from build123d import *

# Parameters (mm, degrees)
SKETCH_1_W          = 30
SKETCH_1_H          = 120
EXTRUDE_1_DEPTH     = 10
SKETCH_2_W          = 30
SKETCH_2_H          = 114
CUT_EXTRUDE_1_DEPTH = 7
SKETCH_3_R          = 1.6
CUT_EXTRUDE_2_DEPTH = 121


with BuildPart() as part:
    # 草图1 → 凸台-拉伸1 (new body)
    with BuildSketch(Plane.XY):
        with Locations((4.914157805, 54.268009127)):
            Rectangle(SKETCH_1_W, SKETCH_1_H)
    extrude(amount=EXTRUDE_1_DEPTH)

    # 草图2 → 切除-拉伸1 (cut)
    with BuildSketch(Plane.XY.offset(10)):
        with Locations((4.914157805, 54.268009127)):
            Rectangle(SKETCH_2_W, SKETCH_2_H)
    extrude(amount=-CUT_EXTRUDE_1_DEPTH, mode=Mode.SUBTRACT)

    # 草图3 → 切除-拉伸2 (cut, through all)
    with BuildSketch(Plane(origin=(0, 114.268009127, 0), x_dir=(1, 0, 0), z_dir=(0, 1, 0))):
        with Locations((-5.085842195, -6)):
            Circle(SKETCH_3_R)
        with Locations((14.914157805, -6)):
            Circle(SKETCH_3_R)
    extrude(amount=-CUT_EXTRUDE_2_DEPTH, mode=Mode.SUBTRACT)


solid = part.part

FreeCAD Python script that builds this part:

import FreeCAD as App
import Part
import Sketcher
Q = App.Units.Quantity


def add_polygon(sketch, points):
    """Adds a closed chain of lines whose ends are joined by coincident constraints."""
    first, n = sketch.GeometryCount, len(points)
    for a, b in zip(points, points[1:] + points[:1]):
        sketch.addGeometry(Part.LineSegment(App.Vector(*a, 0), App.Vector(*b, 0)), False)
    for i in range(n):
        sketch.addConstraint(Sketcher.Constraint("Coincident", first + i, 2, first + (i + 1) % n, 1))

doc = App.newDocument("Part")
body = doc.addObject("PartDesign::Body", "Body")

# Sketch on XY plane
sketch1 = body.newObject("Sketcher::SketchObject", "Sketch")
sketch1.AttachmentSupport = (doc.getObject("XY_Plane"), [""])
sketch1.MapMode = "FlatFace"
add_polygon(sketch1, [(-10, 114), (-10, -6), (20, -6), (20, 114)])  # lines 0-3
sketch1.addConstraint([
    Sketcher.Constraint("Vertical", 0),
    Sketcher.Constraint("Horizontal", 1),
    Sketcher.Constraint("Vertical", 2),
    Sketcher.Constraint("Horizontal", 3),
    Sketcher.Constraint("DistanceX", 1, 1, 1, 2, Q("30 mm")),
    Sketcher.Constraint("DistanceY", 0, 2, 0, 1, Q("120 mm")),
    Sketcher.Constraint("DistanceY", 0, 2, -1, 1, Q("5.731991 mm")),
    Sketcher.Constraint("DistanceX", 0, 2, -1, 1, Q("10.085842 mm")),
])
pad1 = body.newObject("PartDesign::Pad", "Pad")
pad1.Profile = sketch1
pad1.Length = 10

# Sketch on XY plane
sketch2 = body.newObject("Sketcher::SketchObject", "Sketch001")
sketch2.AttachmentSupport = (doc.getObject("XY_Plane"), [""])
sketch2.MapMode = "FlatFace"
sketch2.AttachmentOffset = App.Placement(App.Vector(0, 0, 10), App.Rotation())
add_polygon(sketch2, [(-10, 111), (-10, -3), (20, -3), (20, 111)])  # lines 0-3
sketch2.addConstraint([
    Sketcher.Constraint("Vertical", 0),
    Sketcher.Constraint("Horizontal", 1),
    Sketcher.Constraint("Vertical", 2),
    Sketcher.Constraint("Horizontal", 3),
    Sketcher.Constraint("DistanceX", 1, 1, 1, 2, Q("30 mm")),
    Sketcher.Constraint("DistanceY", 0, 2, 0, 1, Q("114 mm")),
    Sketcher.Constraint("DistanceY", 0, 2, -1, 1, Q("2.731991 mm")),
    Sketcher.Constraint("DistanceX", 0, 2, -1, 1, Q("10.085842 mm")),
])
pocket1 = body.newObject("PartDesign::Pocket", "Pocket")
pocket1.Profile = sketch2
pocket1.Length = 7

# Sketch on XZ plane
sketch3 = body.newObject("Sketcher::SketchObject", "Sketch002")
sketch3.AttachmentSupport = (doc.getObject("XZ_Plane"), [""])
sketch3.MapMode = "FlatFace"
sketch3.AttachmentOffset = App.Placement(App.Vector(0, 0, -114.268009), App.Rotation())
sketch3.addGeometry([
    Part.Circle(App.Vector(-5.1, 6, 0), App.Vector(0, 0, 1), 1.6),
    Part.Circle(App.Vector(14.9, 6, 0), App.Vector(0, 0, 1), 1.6),
], False)
sketch3.addConstraint([
    Sketcher.Constraint("Equal", 0, 1),
    Sketcher.Constraint("Horizontal", 0, 3, 1, 3),
    Sketcher.Constraint("Diameter", 0, Q("3.2 mm")),
    Sketcher.Constraint("DistanceY", -1, 1, 0, 3, Q("6 mm")),
    Sketcher.Constraint("DistanceX", 0, 3, 1, 3, Q("20 mm")),
    Sketcher.Constraint("DistanceX", 0, 3, -1, 1, Q("5.085842 mm")),
])
pocket2 = body.newObject("PartDesign::Pocket", "Pocket001")
pocket2.Profile = sketch3
pocket2.Type = "ThroughAll"
pocket2.Reversed = True

doc.recompute()
